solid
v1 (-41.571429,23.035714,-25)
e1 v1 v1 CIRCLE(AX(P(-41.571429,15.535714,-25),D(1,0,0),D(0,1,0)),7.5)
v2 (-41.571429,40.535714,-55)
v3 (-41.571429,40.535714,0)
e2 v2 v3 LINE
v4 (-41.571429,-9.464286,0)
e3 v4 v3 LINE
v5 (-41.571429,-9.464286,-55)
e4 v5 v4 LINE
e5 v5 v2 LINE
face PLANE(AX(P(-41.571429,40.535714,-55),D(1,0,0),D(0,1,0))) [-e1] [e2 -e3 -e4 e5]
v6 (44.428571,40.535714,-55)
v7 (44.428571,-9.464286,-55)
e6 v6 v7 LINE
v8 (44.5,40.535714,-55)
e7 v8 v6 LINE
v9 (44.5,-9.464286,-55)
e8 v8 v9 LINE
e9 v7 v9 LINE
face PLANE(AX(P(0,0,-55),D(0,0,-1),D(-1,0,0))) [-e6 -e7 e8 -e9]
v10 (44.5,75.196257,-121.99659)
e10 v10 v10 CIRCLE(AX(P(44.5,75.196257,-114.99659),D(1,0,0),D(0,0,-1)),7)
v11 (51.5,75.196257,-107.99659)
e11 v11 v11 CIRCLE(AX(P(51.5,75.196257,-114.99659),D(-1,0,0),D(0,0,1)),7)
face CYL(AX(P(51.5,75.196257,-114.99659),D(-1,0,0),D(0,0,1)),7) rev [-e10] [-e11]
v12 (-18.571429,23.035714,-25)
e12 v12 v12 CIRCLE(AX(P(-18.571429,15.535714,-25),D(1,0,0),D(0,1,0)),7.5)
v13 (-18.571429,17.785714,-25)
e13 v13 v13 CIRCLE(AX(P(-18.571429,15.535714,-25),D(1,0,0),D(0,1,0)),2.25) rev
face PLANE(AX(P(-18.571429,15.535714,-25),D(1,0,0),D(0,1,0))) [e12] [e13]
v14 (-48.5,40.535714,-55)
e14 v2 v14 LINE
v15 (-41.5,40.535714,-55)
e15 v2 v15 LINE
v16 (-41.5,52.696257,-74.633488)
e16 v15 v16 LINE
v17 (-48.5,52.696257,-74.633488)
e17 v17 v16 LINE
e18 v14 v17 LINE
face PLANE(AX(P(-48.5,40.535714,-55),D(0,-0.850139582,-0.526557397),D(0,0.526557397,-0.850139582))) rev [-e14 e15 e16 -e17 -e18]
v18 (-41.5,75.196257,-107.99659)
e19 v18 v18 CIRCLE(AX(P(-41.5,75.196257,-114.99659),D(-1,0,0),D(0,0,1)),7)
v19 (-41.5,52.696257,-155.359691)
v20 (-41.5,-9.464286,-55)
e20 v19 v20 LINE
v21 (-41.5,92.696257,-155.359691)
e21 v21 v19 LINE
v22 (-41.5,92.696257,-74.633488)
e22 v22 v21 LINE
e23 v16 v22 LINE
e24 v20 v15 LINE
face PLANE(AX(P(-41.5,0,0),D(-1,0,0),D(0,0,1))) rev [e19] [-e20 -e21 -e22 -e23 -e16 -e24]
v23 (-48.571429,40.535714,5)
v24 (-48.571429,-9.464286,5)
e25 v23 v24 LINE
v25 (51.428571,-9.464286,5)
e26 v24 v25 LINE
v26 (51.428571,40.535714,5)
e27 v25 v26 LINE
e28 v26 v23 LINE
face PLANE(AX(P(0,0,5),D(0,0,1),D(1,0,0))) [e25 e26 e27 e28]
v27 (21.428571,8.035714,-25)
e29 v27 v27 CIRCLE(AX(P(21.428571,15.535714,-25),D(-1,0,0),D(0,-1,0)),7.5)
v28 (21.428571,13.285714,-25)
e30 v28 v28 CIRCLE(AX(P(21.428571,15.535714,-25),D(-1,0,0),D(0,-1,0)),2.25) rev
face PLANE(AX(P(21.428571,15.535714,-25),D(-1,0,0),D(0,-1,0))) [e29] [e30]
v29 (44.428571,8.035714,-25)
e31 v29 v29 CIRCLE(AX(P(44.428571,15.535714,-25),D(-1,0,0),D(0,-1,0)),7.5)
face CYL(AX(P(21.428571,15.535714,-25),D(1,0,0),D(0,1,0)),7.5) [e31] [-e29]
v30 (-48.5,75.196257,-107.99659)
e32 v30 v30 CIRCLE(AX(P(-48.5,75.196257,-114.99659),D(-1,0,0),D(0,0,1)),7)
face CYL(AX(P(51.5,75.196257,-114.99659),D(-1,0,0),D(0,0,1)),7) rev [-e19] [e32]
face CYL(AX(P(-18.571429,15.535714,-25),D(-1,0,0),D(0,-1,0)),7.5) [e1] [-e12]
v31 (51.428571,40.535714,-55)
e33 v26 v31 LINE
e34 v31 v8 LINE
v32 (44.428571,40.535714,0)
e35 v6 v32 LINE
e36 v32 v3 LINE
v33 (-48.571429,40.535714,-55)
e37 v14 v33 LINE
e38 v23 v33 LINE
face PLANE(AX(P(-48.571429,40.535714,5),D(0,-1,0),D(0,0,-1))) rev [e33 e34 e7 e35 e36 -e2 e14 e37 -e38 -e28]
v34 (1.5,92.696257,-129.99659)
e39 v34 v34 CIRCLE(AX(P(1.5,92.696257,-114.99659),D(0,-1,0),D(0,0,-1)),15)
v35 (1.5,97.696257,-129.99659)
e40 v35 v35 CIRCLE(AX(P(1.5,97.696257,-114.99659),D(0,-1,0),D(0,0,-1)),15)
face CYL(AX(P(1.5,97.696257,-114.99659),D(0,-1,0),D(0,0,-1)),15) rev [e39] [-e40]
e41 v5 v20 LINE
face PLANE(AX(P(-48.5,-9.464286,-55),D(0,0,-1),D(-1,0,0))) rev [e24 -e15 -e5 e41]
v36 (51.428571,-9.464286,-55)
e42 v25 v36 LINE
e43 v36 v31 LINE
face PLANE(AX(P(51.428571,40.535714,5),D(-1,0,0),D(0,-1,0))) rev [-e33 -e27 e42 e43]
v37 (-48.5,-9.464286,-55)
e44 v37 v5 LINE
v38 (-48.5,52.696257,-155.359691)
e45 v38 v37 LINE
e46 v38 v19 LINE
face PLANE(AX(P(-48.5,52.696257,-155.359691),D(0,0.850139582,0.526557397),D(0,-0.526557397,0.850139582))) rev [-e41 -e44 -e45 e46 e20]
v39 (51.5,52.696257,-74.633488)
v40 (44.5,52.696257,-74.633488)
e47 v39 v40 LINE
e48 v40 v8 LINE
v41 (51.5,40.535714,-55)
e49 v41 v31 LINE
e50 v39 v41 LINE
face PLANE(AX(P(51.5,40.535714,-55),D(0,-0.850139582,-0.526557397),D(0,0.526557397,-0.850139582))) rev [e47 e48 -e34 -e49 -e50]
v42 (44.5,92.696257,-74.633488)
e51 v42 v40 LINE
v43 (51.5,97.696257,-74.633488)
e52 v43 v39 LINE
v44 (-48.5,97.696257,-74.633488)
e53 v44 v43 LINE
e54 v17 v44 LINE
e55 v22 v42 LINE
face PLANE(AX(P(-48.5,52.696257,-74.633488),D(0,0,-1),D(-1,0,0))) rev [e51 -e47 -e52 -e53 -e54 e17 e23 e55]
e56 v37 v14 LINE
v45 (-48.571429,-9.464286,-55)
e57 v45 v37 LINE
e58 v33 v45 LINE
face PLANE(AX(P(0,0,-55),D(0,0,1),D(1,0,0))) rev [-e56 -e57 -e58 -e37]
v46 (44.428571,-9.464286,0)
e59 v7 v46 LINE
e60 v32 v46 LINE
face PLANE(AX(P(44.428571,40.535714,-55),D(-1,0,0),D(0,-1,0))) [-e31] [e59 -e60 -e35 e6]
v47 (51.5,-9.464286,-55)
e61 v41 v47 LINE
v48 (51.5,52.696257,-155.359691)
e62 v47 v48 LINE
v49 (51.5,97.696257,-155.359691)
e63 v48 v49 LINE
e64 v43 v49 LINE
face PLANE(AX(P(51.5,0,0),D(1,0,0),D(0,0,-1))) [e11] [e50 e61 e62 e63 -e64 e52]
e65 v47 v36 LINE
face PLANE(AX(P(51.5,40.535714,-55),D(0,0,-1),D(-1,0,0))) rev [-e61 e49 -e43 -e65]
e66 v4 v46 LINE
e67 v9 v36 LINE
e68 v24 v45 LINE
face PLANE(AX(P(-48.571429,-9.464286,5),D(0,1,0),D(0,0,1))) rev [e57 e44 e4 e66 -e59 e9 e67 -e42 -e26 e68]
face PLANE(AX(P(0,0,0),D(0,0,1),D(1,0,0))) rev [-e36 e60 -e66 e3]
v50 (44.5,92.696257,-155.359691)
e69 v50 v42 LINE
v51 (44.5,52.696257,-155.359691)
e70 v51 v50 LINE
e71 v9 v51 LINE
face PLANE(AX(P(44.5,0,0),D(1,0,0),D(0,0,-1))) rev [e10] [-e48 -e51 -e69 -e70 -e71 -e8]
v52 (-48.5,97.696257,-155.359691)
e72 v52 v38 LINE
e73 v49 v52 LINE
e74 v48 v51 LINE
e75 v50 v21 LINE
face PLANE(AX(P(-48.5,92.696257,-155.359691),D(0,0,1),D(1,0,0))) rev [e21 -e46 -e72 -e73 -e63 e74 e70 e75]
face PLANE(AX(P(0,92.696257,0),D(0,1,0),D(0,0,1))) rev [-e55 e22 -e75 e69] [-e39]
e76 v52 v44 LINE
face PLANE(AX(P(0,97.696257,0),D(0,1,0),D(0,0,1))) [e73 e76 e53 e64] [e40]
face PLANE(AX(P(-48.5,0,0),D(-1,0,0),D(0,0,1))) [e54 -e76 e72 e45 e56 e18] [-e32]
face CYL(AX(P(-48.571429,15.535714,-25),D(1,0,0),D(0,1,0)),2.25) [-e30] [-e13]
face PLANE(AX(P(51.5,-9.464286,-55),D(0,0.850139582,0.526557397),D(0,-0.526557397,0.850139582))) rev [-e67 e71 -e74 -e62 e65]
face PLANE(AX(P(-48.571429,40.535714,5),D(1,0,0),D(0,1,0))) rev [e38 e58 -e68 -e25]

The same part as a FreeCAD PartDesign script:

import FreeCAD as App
import Part
import Sketcher
from FreeCAD import Vector
Q = App.Units.Quantity


def add_polygon(sketch, points):
    """Adds a closed chain of lines whose ends are joined by coincident constraints."""
    first, n = sketch.GeometryCount, len(points)
    for a, b in zip(points, points[1:] + points[:1]):
        sketch.addGeometry(Part.LineSegment(App.Vector(*a, 0), App.Vector(*b, 0)), False)
    for i in range(n):
        sketch.addConstraint(Sketcher.Constraint("Coincident", first + i, 2, first + (i + 1) % n, 1))

doc = App.newDocument("Part")
body = doc.addObject("PartDesign::Body", "Body")

sketch1 = body.newObject("Sketcher::SketchObject", "Sketch")
sketch1.AttachmentSupport = (doc.getObject("XY_Plane"), [""])
sketch1.MapMode = "FlatFace"
add_polygon(sketch1, [(-48.571429, 40.535714), (-48.571429, -9.464286), (51.428571, -9.464286), (51.428571, 40.535714)])
sketch1.addConstraint(Sketcher.Constraint("Vertical", 0))
sketch1.addConstraint(Sketcher.Constraint("Horizontal", 1))
sketch1.addConstraint(Sketcher.Constraint("Vertical", 2))
sketch1.addConstraint(Sketcher.Constraint("Horizontal", 3))
sketch1.addConstraint(Sketcher.Constraint("DistanceX", 1, 1, 1, 2, Q("100 mm")))
sketch1.addConstraint(Sketcher.Constraint("DistanceY", 0, 2, 0, 1, Q("50 mm")))
sketch1.addConstraint(Sketcher.Constraint("DistanceX", 0, 2, -1, 1, Q("48.571429 mm")))
sketch1.addConstraint(Sketcher.Constraint("DistanceY", 0, 2, -1, 1, Q("9.464286 mm")))
pad1 = body.newObject("PartDesign::Pad", "Pad")
pad1.Profile = sketch1
pad1.Length = 5

sketch2 = body.newObject("Sketcher::SketchObject", "Sketch001")
sketch2.AttachmentSupport = (doc.getObject("XY_Plane"), [""])
sketch2.MapMode = "FlatFace"
add_polygon(sketch2, [(44.428571, 40.535714), (44.428571, -9.464286), (51.428571, -9.464286), (51.428571, 40.535714)])
add_polygon(sketch2, [(-48.571429, 40.535714), (-48.571429, -9.464286), (-41.571429, -9.464286), (-41.571429, 40.535714)])
sketch2.addConstraint(Sketcher.Constraint("Vertical", 0))
sketch2.addConstraint(Sketcher.Constraint("Horizontal", 1))
sketch2.addConstraint(Sketcher.Constraint("Vertical", 2))
sketch2.addConstraint(Sketcher.Constraint("Horizontal", 3))
sketch2.addConstraint(Sketcher.Constraint("Vertical", 4))
sketch2.addConstraint(Sketcher.Constraint("Horizontal", 5))
sketch2.addConstraint(Sketcher.Constraint("Vertical", 6))
sketch2.addConstraint(Sketcher.Constraint("Horizontal", 7))
sketch2.addConstraint(Sketcher.Constraint("Horizontal", 1, 2, 4, 2))
sketch2.addConstraint(Sketcher.Constraint("Horizontal", 3, 2, 6, 2))
sketch2.addConstraint(Sketcher.Constraint("Equal", 3, 5))
sketch2.addConstraint(Sketcher.Constraint("DistanceX", 1, 1, 1, 2, Q("7 mm")))
sketch2.addConstraint(Sketcher.Constraint("DistanceY", 0, 2, 0, 1, Q("50 mm")))
sketch2.addConstraint(Sketcher.Constraint("DistanceX", 4, 2, 0, 2, Q("93 mm")))
sketch2.addConstraint(Sketcher.Constraint("DistanceX", -1, 1, 0, 2, Q("44.428571 mm")))
sketch2.addConstraint(Sketcher.Constraint("DistanceY", 0, 2, -1, 1, Q("9.464286 mm")))
pad2 = body.newObject("PartDesign::Pad", "Pad001")
pad2.Profile = sketch2
pad2.Length = 55
pad2.Reversed = True

sketch3 = body.newObject("Sketcher::SketchObject", "Sketch002")
sketch3.AttachmentSupport = (doc.getObject("YZ_Plane"), [""])
sketch3.MapMode = "FlatFace"
sketch3.AttachmentOffset = App.Placement(Vector(0, 0, 44.5), App.Rotation())
add_polygon(sketch3, [(52.696257, -74.633488), (40.535714, -55), (-9.464286, -55), (52.696257, -155.359691)])
sketch3.addConstraint(Sketcher.Constraint("Horizontal", 1))
sketch3.addConstraint(Sketcher.Constraint("Vertical", 3))
sketch3.addConstraint(Sketcher.Constraint("Parallel", 0, 2))
sketch3.addConstraint(Sketcher.Constraint("DistanceX", 1, 2, 1, 1, Q("50 mm")))
sketch3.addConstraint(Sketcher.Constraint("DistanceY", 0, 2, -1, 1, Q("55 mm")))
sketch3.addConstraint(Sketcher.Constraint("Distance", 0, Q("23.094429 mm")))
sketch3.addConstraint(Sketcher.Constraint("Distance", 2, Q("118.050839 mm")))
sketch3.addConstraint(Sketcher.Constraint("DistanceX", -1, 1, 0, 2, Q("40.535714 mm")))
pad3 = body.newObject("PartDesign::Pad", "Pad002")
pad3.Profile = sketch3
pad3.Length = 7

sketch4 = body.newObject("Sketcher::SketchObject", "Sketch003")
sketch4.AttachmentSupport = (doc.getObject("YZ_Plane"), [""])
sketch4.MapMode = "FlatFace"
sketch4.AttachmentOffset = App.Placement(Vector(0, 0, -41.5), App.Rotation())
add_polygon(sketch4, [(-9.464286, -55), (40.535714, -55), (52.696257, -74.633488), (52.696257, -155.359691)])
sketch4.addConstraint(Sketcher.Constraint("Horizontal", 0))
sketch4.addConstraint(Sketcher.Constraint("Vertical", 2))
sketch4.addConstraint(Sketcher.Constraint("Parallel", 1, 3))
sketch4.addConstraint(Sketcher.Constraint("DistanceX", 0, 1, 0, 2, Q("50 mm")))
sketch4.addConstraint(Sketcher.Constraint("DistanceY", 0, 2, -1, 1, Q("55 mm")))
sketch4.addConstraint(Sketcher.Constraint("Distance", 1, Q("23.094429 mm")))
sketch4.addConstraint(Sketcher.Constraint("Distance", 3, Q("118.050839 mm")))
sketch4.addConstraint(Sketcher.Constraint("DistanceX", -1, 1, 0, 2, Q("40.535714 mm")))
pad4 = body.newObject("PartDesign::Pad", "Pad003")
pad4.Profile = sketch4
pad4.Length = 7
pad4.Reversed = True

sketch5 = body.newObject("Sketcher::SketchObject", "Sketch004")
sketch5.AttachmentSupport = (doc.getObject("YZ_Plane"), [""])
sketch5.MapMode = "FlatFace"
sketch5.AttachmentOffset = App.Placement(Vector(0, 0, -41.5), App.Rotation())
add_polygon(sketch5, [(92.696257, -155.359691), (52.696257, -155.359691), (52.696257, -74.633488), (92.696257, -74.633488)])
sketch5.addConstraint(Sketcher.Constraint("Horizontal", 0))
sketch5.addConstraint(Sketcher.Constraint("Vertical", 1))
sketch5.addConstraint(Sketcher.Constraint("Horizontal", 2))
sketch5.addConstraint(Sketcher.Constraint("Vertical", 3))
sketch5.addConstraint(Sketcher.Constraint("DistanceX", 0, 2, 0, 1, Q("40 mm")))
sketch5.addConstraint(Sketcher.Constraint("DistanceY", 1, 1, 1, 2, Q("80.726203 mm")))
sketch5.addConstraint(Sketcher.Constraint("DistanceY", 0, 2, -1, 1, Q("155.359691 mm")))
sketch5.addConstraint(Sketcher.Constraint("DistanceX", -1, 1, 0, 2, Q("52.696257 mm")))
pad5 = body.newObject("PartDesign::Pad", "Pad004")
pad5.Profile = sketch5
pad5.Length = 7
pad5.Reversed = True

sketch6 = body.newObject("Sketcher::SketchObject", "Sketch005")
sketch6.AttachmentSupport = (doc.getObject("YZ_Plane"), [""])
sketch6.MapMode = "FlatFace"
sketch6.AttachmentOffset = App.Placement(Vector(0, 0, 44.5), App.Rotation())
add_polygon(sketch6, [(92.696257, -74.633488), (52.696257, -74.633488), (52.696257, -155.359691), (92.696257, -155.359691)])
sketch6.addConstraint(Sketcher.Constraint("Horizontal", 0))
sketch6.addConstraint(Sketcher.Constraint("Vertical", 1))
sketch6.addConstraint(Sketcher.Constraint("Horizontal", 2))
sketch6.addConstraint(Sketcher.Constraint("Vertical", 3))
sketch6.addConstraint(Sketcher.Constraint("DistanceX", 0, 2, 0, 1, Q("40 mm")))
sketch6.addConstraint(Sketcher.Constraint("DistanceY", 1, 2, 1, 1, Q("80.726203 mm")))
sketch6.addConstraint(Sketcher.Constraint("DistanceY", 0, 2, -1, 1, Q("74.633488 mm")))
sketch6.addConstraint(Sketcher.Constraint("DistanceX", -1, 1, 0, 2, Q("52.696257 mm")))
pad6 = body.newObject("PartDesign::Pad", "Pad005")
pad6.Profile = sketch6
pad6.Length = 7

sketch7 = body.newObject("Sketcher::SketchObject", "Sketch006")
sketch7.AttachmentSupport = (doc.getObject("XZ_Plane"), [""])
sketch7.MapMode = "FlatFace"
sketch7.AttachmentOffset = App.Placement(Vector(0, 0, -92.696257), App.Rotation())
add_polygon(sketch7, [(-48.5, -155.359691), (-48.5, -74.633488), (51.5, -74.633488), (51.5, -155.359691)])
sketch7.addConstraint(Sketcher.Constraint("Vertical", 0))
sketch7.addConstraint(Sketcher.Constraint("Horizontal", 1))
sketch7.addConstraint(Sketcher.Constraint("Vertical", 2))
sketch7.addConstraint(Sketcher.Constraint("Horizontal", 3))
sketch7.addConstraint(Sketcher.Constraint("DistanceX", 1, 1, 1, 2, Q("100 mm")))
sketch7.addConstraint(Sketcher.Constraint("DistanceX", 0, 2, -1, 1, Q("48.5 mm")))
sketch7.addConstraint(Sketcher.Constraint("DistanceY", 0, 1, 0, 2, Q("80.726203 mm")))
sketch7.addConstraint(Sketcher.Constraint("DistanceY", 0, 2, -1, 1, Q("74.633488 mm")))
pad7 = body.newObject("PartDesign::Pad", "Pad006")
pad7.Profile = sketch7
pad7.Length = 5
pad7.Reversed = True

sketch8 = body.newObject("Sketcher::SketchObject", "Sketch007")
sketch8.AttachmentSupport = (doc.getObject("YZ_Plane"), [""])
sketch8.MapMode = "FlatFace"
sketch8.AttachmentOffset = App.Placement(Vector(0, 0, -48.5), App.Rotation())
sketch8.addGeometry(Part.Circle(Vector(75.196257, -114.99659, 0), Vector(0, 0, 1), 7), False)
sketch8.addConstraint(Sketcher.Constraint("Diameter", 0, Q("14 mm")))
sketch8.addConstraint(Sketcher.Constraint("DistanceY", 0, 3, -1, 1, Q("114.99659 mm")))
sketch8.addConstraint(Sketcher.Constraint("DistanceX", -1, 1, 0, 3, Q("75.196257 mm")))
pocket1 = body.newObject("PartDesign::Pocket", "Pocket")
pocket1.Profile = sketch8
pocket1.Type = "ThroughAll"
pocket1.Reversed = True

sketch9 = body.newObject("Sketcher::SketchObject", "Sketch008")
sketch9.AttachmentSupport = (doc.getObject("XZ_Plane"), [""])
sketch9.MapMode = "FlatFace"
sketch9.AttachmentOffset = App.Placement(Vector(0, 0, -92.696257), App.Rotation())
sketch9.addGeometry(Part.Circle(Vector(1.5, -114.99659, 0), Vector(0, 0, 1), 15), False)
sketch9.addConstraint(Sketcher.Constraint("Diameter", 0, Q("30 mm")))
sketch9.addConstraint(Sketcher.Constraint("DistanceX", -1, 1, 0, 3, Q("1.5 mm")))
sketch9.addConstraint(Sketcher.Constraint("DistanceY", 0, 3, -1, 1, Q("114.99659 mm")))
pocket2 = body.newObject("PartDesign::Pocket", "Pocket001")
pocket2.Profile = sketch9
pocket2.Length = 5

sketch10 = body.newObject("Sketcher::SketchObject", "Sketch009")
sketch10.AttachmentSupport = (doc.getObject("YZ_Plane"), [""])
sketch10.MapMode = "FlatFace"
sketch10.AttachmentOffset = App.Placement(Vector(0, 0, 51.428571), App.Rotation())
sketch10.addGeometry(Part.Circle(Vector(15.535714, -25, 0), Vector(0, 0, 1), 2.25), False)
sketch10.addConstraint(Sketcher.Constraint("Diameter", 0, Q("4.5 mm")))
sketch10.addConstraint(Sketcher.Constraint("DistanceY", 0, 3, -1, 1, Q("25 mm")))
sketch10.addConstraint(Sketcher.Constraint("DistanceX", -1, 1, 0, 3, Q("15.535714 mm")))
pad8 = body.newObject("PartDesign::Pad", "Pad007")
pad8.Profile = sketch10
pad8.Length = 93
pad8.Reversed = True

sketch11 = body.newObject("Sketcher::SketchObject", "Sketch010")
sketch11.AttachmentSupport = (doc.getObject("YZ_Plane"), [""])
sketch11.MapMode = "FlatFace"
sketch11.AttachmentOffset = App.Placement(Vector(0, 0, 44.428571), App.Rotation())
sketch11.addGeometry(Part.Circle(Vector(15.535714, -25, 0), Vector(0, 0, 1), 7.5), False)
sketch11.addConstraint(Sketcher.Constraint("Diameter", 0, Q("15 mm")))
sketch11.addConstraint(Sketcher.Constraint("DistanceY", 0, 3, -1, 1, Q("25 mm")))
sketch11.addConstraint(Sketcher.Constraint("DistanceX", -1, 1, 0, 3, Q("15.535714 mm")))
pad9 = body.newObject("PartDesign::Pad", "Pad008")
pad9.Profile = sketch11
pad9.Length = 23
pad9.Reversed = True

sketch12 = body.newObject("Sketcher::SketchObject", "Sketch011")
sketch12.AttachmentSupport = (doc.getObject("YZ_Plane"), [""])
sketch12.MapMode = "FlatFace"
sketch12.AttachmentOffset = App.Placement(Vector(0, 0, -41.571429), App.Rotation())
sketch12.addGeometry(Part.Circle(Vector(15.535714, -25, 0), Vector(0, 0, 1), 7.5), False)
sketch12.addConstraint(Sketcher.Constraint("Diameter", 0, Q("15 mm")))
sketch12.addConstraint(Sketcher.Constraint("DistanceY", 0, 3, -1, 1, Q("25 mm")))
sketch12.addConstraint(Sketcher.Constraint("DistanceX", -1, 1, 0, 3, Q("15.535714 mm")))
pad10 = body.newObject("PartDesign::Pad", "Pad009")
pad10.Profile = sketch12
pad10.Length = 23

doc.recompute()
